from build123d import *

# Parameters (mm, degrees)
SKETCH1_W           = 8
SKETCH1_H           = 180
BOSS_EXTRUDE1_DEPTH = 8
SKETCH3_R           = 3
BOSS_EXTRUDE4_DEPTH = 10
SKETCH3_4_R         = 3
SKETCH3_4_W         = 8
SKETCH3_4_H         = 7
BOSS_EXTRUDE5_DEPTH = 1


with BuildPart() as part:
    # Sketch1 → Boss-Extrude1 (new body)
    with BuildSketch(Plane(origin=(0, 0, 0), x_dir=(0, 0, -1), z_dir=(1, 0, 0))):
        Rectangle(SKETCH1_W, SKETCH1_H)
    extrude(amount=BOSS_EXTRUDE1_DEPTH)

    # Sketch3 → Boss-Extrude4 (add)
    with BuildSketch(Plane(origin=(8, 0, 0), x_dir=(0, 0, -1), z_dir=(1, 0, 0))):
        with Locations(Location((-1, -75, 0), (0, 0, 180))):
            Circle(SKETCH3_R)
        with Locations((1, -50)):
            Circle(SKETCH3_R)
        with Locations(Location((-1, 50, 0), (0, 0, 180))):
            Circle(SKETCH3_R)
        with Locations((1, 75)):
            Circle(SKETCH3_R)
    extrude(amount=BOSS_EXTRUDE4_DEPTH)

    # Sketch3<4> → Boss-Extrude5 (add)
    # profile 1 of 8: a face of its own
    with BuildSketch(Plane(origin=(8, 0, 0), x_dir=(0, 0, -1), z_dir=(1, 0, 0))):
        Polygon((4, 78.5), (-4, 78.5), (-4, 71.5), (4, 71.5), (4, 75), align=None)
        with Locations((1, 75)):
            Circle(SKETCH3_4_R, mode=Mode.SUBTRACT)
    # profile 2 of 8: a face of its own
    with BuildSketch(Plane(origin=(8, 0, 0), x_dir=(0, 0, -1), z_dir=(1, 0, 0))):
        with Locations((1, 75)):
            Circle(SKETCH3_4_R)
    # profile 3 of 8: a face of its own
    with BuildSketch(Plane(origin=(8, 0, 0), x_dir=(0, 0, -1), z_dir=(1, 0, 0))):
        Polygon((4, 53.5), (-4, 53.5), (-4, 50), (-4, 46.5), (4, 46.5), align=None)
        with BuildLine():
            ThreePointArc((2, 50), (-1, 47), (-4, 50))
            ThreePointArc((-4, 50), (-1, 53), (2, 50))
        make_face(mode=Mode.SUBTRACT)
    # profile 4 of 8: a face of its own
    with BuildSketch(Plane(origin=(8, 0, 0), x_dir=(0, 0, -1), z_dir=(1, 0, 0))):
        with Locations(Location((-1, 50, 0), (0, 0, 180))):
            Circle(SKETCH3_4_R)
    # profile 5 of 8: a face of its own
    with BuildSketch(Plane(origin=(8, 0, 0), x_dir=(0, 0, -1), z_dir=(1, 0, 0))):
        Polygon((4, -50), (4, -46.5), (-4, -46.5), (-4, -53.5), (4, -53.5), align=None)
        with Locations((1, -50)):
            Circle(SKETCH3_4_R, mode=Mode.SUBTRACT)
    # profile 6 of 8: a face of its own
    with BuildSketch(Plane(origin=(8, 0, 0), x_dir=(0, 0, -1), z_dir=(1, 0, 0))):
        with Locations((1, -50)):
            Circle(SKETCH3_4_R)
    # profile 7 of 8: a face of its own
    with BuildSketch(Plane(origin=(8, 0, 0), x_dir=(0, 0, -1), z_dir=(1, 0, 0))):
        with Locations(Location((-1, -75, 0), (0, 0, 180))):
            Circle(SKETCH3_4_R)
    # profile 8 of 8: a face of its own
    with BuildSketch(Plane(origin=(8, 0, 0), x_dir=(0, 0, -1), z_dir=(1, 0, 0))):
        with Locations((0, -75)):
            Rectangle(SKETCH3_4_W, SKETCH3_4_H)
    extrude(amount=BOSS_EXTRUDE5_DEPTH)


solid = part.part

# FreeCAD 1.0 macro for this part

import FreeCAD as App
import Part
import Sketcher
from FreeCAD import Vector

doc = App.newDocument("Part")
body = doc.addObject("PartDesign::Body", "Body")

# Sketch on YZ plane
sketch1 = body.newObject("Sketcher::SketchObject", "Sketch")
sketch1.AttachmentSupport = (doc.getObject("YZ_Plane"), [""])
sketch1.MapMode = "FlatFace"
sketch1.addGeometry(Part.LineSegment(Vector(90, 4, 0), Vector(-90, 4, 0)), False)
sketch1.addGeometry(Part.LineSegment(Vector(-90, 4, 0), Vector(-90, -4, 0)), False)
sketch1.addGeometry(Part.LineSegment(Vector(-90, -4, 0), Vector(90, -4, 0)), False)
sketch1.addGeometry(Part.LineSegment(Vector(90, -4, 0), Vector(90, 4, 0)), False)
sketch1.addConstraint(Sketcher.Constraint("Coincident", 0, 2, 1, 1))
sketch1.addConstraint(Sketcher.Constraint("Coincident", 1, 2, 2, 1))
sketch1.addConstraint(Sketcher.Constraint("Coincident", 2, 2, 3, 1))
sketch1.addConstraint(Sketcher.Constraint("Coincident", 3, 2, 0, 1))
sketch1.addConstraint(Sketcher.Constraint("Horizontal", 0))
sketch1.addConstraint(Sketcher.Constraint("Vertical", 1))
sketch1.addConstraint(Sketcher.Constraint("Horizontal", 2))
sketch1.addConstraint(Sketcher.Constraint("Vertical", 3))
sketch1.addConstraint(Sketcher.Constraint("Symmetric", 0, 2, 2, 2, -1, 1))
sketch1.addConstraint(Sketcher.Constraint("DistanceX", 0, 2, 0, 1, 180.0))
sketch1.addConstraint(Sketcher.Constraint("DistanceY", 1, 2, 1, 1, 8.0))
pad1 = body.newObject("PartDesign::Pad", "Pad")
pad1.Profile = sketch1
pad1.Length = 8

# Sketch on YZ plane
sketch2 = body.newObject("Sketcher::SketchObject", "Sketch001")
sketch2.AttachmentSupport = (doc.getObject("YZ_Plane"), [""])
sketch2.MapMode = "FlatFace"
sketch2.AttachmentOffset = App.Placement(Vector(0, 0, 8), App.Rotation())
sketch2.addGeometry(Part.Circle(Vector(-75, 1, 0), Vector(0, 0, 1), 3), False)
sketch2.addGeometry(Part.Circle(Vector(-50, -1, 0), Vector(0, 0, 1), 3), False)
sketch2.addGeometry(Part.Circle(Vector(50, 1, 0), Vector(0, 0, 1), 3), False)
sketch2.addGeometry(Part.Circle(Vector(75, -1, 0), Vector(0, 0, 1), 3), False)
sketch2.addConstraint(Sketcher.Constraint("Equal", 0, 1))
sketch2.addConstraint(Sketcher.Constraint("Equal", 1, 2))
sketch2.addConstraint(Sketcher.Constraint("Equal", 2, 3))
sketch2.addConstraint(Sketcher.Constraint("Symmetric", 1, 3, 2, 3, -1, 1))
sketch2.addConstraint(Sketcher.Constraint("Symmetric", 0, 3, 3, 3, -1, 1))
sketch2.addConstraint(Sketcher.Constraint("Horizontal", 0, 3, 2, 3))
sketch2.addConstraint(Sketcher.Constraint("Diameter", 0, 6.0))
sketch2.addConstraint(Sketcher.Constraint("DistanceX", 0, 3, -1, 1, 75.0))
sketch2.addConstraint(Sketcher.Constraint("DistanceY", -1, 1, 0, 3, 1.0))
sketch2.addConstraint(Sketcher.Constraint("DistanceX", 1, 3, -1, 1, 50.0))
pad2 = body.newObject("PartDesign::Pad", "Pad001")
pad2.Profile = sketch2
pad2.Length = 10

# Sketch on YZ plane
sketch3 = body.newObject("Sketcher::SketchObject", "Sketch002")
sketch3.AttachmentSupport = (doc.getObject("YZ_Plane"), [""])
sketch3.MapMode = "FlatFace"
sketch3.AttachmentOffset = App.Placement(Vector(0, 0, 8), App.Rotation())
sketch3.addGeometry(Part.LineSegment(Vector(72, -4, 0), Vector(78, -4, 0)), False)
sketch3.addGeometry(Part.LineSegment(Vector(78, -4, 0), Vector(78, 4, 0)), False)
sketch3.addGeometry(Part.LineSegment(Vector(78, 4, 0), Vector(72, 4, 0)), False)
sketch3.addGeometry(Part.LineSegment(Vector(72, 4, 0), Vector(72, -4, 0)), False)
sketch3.addGeometry(Part.LineSegment(Vector(46, 4, 0), Vector(46, -4, 0)), False)
sketch3.addGeometry(Part.LineSegment(Vector(46, -4, 0), Vector(54, -4, 0)), False)
sketch3.addGeometry(Part.LineSegment(Vector(54, -4, 0), Vector(54, 4, 0)), False)
sketch3.addGeometry(Part.LineSegment(Vector(54, 4, 0), Vector(46, 4, 0)), False)
sketch3.addGeometry(Part.LineSegment(Vector(-54, -4, 0), Vector(-46, -4, 0)), False)
sketch3.addGeometry(Part.LineSegment(Vector(-46, -4, 0), Vector(-46, 4, 0)), False)
sketch3.addGeometry(Part.LineSegment(Vector(-46, 4, 0), Vector(-54, 4, 0)), False)
sketch3.addGeometry(Part.LineSegment(Vector(-54, 4, 0), Vector(-54, -4, 0)), False)
sketch3.addGeometry(Part.LineSegment(Vector(-78, 4, 0), Vector(-78, -4, 0)), False)
sketch3.addGeometry(Part.LineSegment(Vector(-78, -4, 0), Vector(-72, -4, 0)), False)
sketch3.addGeometry(Part.LineSegment(Vector(-72, -4, 0), Vector(-72, 4, 0)), False)
sketch3.addGeometry(Part.LineSegment(Vector(-72, 4, 0), Vector(-78, 4, 0)), False)
sketch3.addConstraint(Sketcher.Constraint("Coincident", 0, 2, 1, 1))
sketch3.addConstraint(Sketcher.Constraint("Coincident", 1, 2, 2, 1))
sketch3.addConstraint(Sketcher.Constraint("Coincident", 2, 2, 3, 1))
sketch3.addConstraint(Sketcher.Constraint("Coincident", 3, 2, 0, 1))
sketch3.addConstraint(Sketcher.Constraint("Coincident", 4, 2, 5, 1))
sketch3.addConstraint(Sketcher.Constraint("Coincident", 5, 2, 6, 1))
sketch3.addConstraint(Sketcher.Constraint("Coincident", 6, 2, 7, 1))
sketch3.addConstraint(Sketcher.Constraint("Coincident", 7, 2, 4, 1))
sketch3.addConstraint(Sketcher.Constraint("Coincident", 8, 2, 9, 1))
sketch3.addConstraint(Sketcher.Constraint("Coincident", 9, 2, 10, 1))
sketch3.addConstraint(Sketcher.Constraint("Coincident", 10, 2, 11, 1))
sketch3.addConstraint(Sketcher.Constraint("Coincident", 11, 2, 8, 1))
sketch3.addConstraint(Sketcher.Constraint("Coincident", 12, 2, 13, 1))
sketch3.addConstraint(Sketcher.Constraint("Coincident", 13, 2, 14, 1))
sketch3.addConstraint(Sketcher.Constraint("Coincident", 14, 2, 15, 1))
sketch3.addConstraint(Sketcher.Constraint("Coincident", 15, 2, 12, 1))
sketch3.addConstraint(Sketcher.Constraint("Horizontal", 0))
sketch3.addConstraint(Sketcher.Constraint("Vertical", 1))
sketch3.addConstraint(Sketcher.Constraint("Horizontal", 2))
sketch3.addConstraint(Sketcher.Constraint("Vertical", 3))
sketch3.addConstraint(Sketcher.Constraint("Vertical", 4))
sketch3.addConstraint(Sketcher.Constraint("Horizontal", 5))
sketch3.addConstraint(Sketcher.Constraint("Vertical", 6))
sketch3.addConstraint(Sketcher.Constraint("Horizontal", 7))
sketch3.addConstraint(Sketcher.Constraint("Horizontal", 8))
sketch3.addConstraint(Sketcher.Constraint("Vertical", 9))
sketch3.addConstraint(Sketcher.Constraint("Horizontal", 10))
sketch3.addConstraint(Sketcher.Constraint("Vertical", 11))
sketch3.addConstraint(Sketcher.Constraint("Vertical", 12))
sketch3.addConstraint(Sketcher.Constraint("Horizontal", 13))
sketch3.addConstraint(Sketcher.Constraint("Vertical", 14))
sketch3.addConstraint(Sketcher.Constraint("Horizontal", 15))
sketch3.addConstraint(Sketcher.Constraint("Symmetric", 7, 2, 8, 2, -1, 1))
sketch3.addConstraint(Sketcher.Constraint("Symmetric", 5, 2, 10, 2, -1, 1))
sketch3.addConstraint(Sketcher.Constraint("Symmetric", 1, 2, 12, 2, -1, 1))
sketch3.addConstraint(Sketcher.Constraint("Symmetric", 3, 2, 14, 2, -1, 1))
sketch3.addConstraint(Sketcher.Constraint("Horizontal", 3, 2, 4, 2))
sketch3.addConstraint(Sketcher.Constraint("Horizontal", 2, 2, 6, 2))
sketch3.addConstraint(Sketcher.Constraint("Horizontal", 5, 2, 8, 2))
sketch3.addConstraint(Sketcher.Constraint("Equal", 2, 5))
sketch3.addConstraint(Sketcher.Constraint("DistanceX", 0, 1, 0, 2, 7.0))
sketch3.addConstraint(Sketcher.Constraint("DistanceY", 1, 1, 1, 2, 8.0))
sketch3.addConstraint(Sketcher.Constraint("DistanceX", 4, 2, 3, 2, 25.0))
sketch3.addConstraint(Sketcher.Constraint("DistanceX", 8, 2, 4, 2, 93.0))
pad3 = body.newObject("PartDesign::Pad", "Pad002")
pad3.Profile = sketch3
pad3.Length = 1

doc.recompute()
